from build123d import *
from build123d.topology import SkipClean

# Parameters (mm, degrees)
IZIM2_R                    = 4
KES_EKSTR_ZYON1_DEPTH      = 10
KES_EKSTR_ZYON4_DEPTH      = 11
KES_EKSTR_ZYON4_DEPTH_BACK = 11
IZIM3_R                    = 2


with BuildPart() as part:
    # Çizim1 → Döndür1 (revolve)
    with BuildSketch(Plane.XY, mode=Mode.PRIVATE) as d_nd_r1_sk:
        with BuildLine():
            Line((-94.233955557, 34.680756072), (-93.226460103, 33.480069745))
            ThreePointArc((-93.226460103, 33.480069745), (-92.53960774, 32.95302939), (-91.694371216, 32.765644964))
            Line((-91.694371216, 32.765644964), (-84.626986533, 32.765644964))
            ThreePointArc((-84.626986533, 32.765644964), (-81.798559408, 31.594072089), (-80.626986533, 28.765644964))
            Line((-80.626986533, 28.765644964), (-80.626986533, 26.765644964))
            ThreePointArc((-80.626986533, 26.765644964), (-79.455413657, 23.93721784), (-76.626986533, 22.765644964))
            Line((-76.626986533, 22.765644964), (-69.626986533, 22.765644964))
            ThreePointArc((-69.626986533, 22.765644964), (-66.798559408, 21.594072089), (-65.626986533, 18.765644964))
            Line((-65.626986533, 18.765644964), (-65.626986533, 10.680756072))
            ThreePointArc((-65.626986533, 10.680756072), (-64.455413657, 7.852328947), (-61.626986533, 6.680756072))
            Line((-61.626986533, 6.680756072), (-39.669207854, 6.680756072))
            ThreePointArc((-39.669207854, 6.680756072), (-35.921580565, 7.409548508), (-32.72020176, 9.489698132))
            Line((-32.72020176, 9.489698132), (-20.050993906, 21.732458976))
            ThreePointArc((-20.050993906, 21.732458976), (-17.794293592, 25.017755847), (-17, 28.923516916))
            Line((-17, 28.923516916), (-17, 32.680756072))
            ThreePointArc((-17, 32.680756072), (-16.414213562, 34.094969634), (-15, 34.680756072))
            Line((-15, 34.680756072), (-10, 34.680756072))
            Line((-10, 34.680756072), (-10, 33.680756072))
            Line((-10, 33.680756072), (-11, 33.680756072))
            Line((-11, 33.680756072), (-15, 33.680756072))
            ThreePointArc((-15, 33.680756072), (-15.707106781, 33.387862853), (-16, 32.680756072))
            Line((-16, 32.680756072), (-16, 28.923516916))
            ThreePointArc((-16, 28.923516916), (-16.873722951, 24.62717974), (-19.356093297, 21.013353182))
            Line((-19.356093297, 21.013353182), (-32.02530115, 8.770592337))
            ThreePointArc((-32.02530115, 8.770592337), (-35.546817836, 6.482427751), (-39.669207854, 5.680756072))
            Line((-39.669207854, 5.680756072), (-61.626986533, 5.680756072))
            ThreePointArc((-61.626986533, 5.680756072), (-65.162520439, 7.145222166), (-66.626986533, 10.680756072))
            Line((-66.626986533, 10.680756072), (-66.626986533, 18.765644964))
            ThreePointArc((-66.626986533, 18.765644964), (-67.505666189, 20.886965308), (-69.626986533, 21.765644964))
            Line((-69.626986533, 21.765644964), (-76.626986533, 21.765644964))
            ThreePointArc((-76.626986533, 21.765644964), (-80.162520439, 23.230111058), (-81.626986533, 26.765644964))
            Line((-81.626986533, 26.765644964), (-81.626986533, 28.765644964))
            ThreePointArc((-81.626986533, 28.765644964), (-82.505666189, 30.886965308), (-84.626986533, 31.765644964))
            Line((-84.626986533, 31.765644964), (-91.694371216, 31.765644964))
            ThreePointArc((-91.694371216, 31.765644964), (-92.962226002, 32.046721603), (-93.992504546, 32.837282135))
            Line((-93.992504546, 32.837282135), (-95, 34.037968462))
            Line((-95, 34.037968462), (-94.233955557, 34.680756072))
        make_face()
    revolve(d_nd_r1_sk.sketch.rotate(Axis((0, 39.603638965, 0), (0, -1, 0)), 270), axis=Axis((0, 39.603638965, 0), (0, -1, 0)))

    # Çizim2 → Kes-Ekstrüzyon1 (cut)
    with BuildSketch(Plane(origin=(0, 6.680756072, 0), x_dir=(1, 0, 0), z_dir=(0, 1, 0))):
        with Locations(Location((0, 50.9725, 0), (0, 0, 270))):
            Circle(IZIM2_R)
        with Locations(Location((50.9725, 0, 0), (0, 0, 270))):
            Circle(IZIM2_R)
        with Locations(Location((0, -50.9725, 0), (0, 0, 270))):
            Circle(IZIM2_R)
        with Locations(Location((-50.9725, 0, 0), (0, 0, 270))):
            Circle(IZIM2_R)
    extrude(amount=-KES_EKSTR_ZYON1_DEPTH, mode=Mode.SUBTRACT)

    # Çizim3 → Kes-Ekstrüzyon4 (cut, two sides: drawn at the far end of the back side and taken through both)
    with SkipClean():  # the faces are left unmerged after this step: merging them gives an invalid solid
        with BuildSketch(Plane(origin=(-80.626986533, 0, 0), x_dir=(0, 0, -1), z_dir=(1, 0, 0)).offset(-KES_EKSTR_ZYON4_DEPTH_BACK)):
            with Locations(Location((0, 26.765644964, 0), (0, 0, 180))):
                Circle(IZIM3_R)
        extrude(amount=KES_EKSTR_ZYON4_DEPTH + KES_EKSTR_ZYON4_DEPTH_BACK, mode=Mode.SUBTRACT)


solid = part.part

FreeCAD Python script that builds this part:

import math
import FreeCAD as App
import Part
import Sketcher
Q = App.Units.Quantity

doc = App.newDocument("Part")
body = doc.addObject("PartDesign::Body", "Body")

sketch1 = doc.addObject("Sketcher::SketchObject", "Sketch")
body.addObject(sketch1)
sketch1.AttachmentSupport = (doc.XY_Plane, [""])
sketch1.MapMode = "FlatFace"
sketch1.addGeometry([
    Part.LineSegment(App.Vector(-93.2, 33.5, 0), App.Vector(-94.2, 34.7, 0)),
    Part.LineSegment(App.Vector(-94.2, 34.7, 0), App.Vector(-95, 34, 0)),
    Part.LineSegment(App.Vector(-95, 34, 0), App.Vector(-94, 32.8, 0)),
    Part.ArcOfCircle(Part.Circle(App.Vector(-91.7, 34.8, 0), App.Vector(0, 0, 1), 3), math.radians(-140), math.radians(-90)),
    Part.LineSegment(App.Vector(-91.7, 31.8, 0), App.Vector(-84.6, 31.8, 0)),
    Part.ArcOfCircle(Part.Circle(App.Vector(-84.6, 28.8, 0), App.Vector(0, 0, 1), 3), math.radians(0), math.radians(90)),
    Part.LineSegment(App.Vector(-81.6, 28.8, 0), App.Vector(-81.6, 26.8, 0)),
    Part.ArcOfCircle(Part.Circle(App.Vector(-76.6, 26.8, 0), App.Vector(0, 0, 1), 5), math.radians(180), math.radians(270)),
    Part.LineSegment(App.Vector(-76.6, 21.8, 0), App.Vector(-69.6, 21.8, 0)),
    Part.ArcOfCircle(Part.Circle(App.Vector(-69.6, 18.8, 0), App.Vector(0, 0, 1), 3), math.radians(0), math.radians(90)),
    Part.LineSegment(App.Vector(-66.6, 18.8, 0), App.Vector(-66.6, 10.7, 0)),
    Part.ArcOfCircle(Part.Circle(App.Vector(-61.6, 10.7, 0), App.Vector(0, 0, 1), 5), math.radians(180), math.radians(270)),
    Part.LineSegment(App.Vector(-61.6, 5.7, 0), App.Vector(-39.7, 5.7, 0)),
    Part.ArcOfCircle(Part.Circle(App.Vector(-39.7, 16.7, 0), App.Vector(0, 0, 1), 11), math.radians(-90), math.radians(-46)),
    Part.LineSegment(App.Vector(-32, 8.8, 0), App.Vector(-19.4, 21, 0)),
    Part.ArcOfCircle(Part.Circle(App.Vector(-27, 28.9, 0), App.Vector(0, 0, 1), 11), math.radians(-46), math.radians(0)),
    Part.LineSegment(App.Vector(-16, 28.9, 0), App.Vector(-16, 32.7, 0)),
    Part.ArcOfCircle(Part.Circle(App.Vector(-15, 32.7, 0), App.Vector(0, 0, 1), 1), math.radians(90), math.radians(180)),
    Part.LineSegment(App.Vector(-15, 33.7, 0), App.Vector(-10, 33.7, 0)),
    Part.LineSegment(App.Vector(-10, 33.7, 0), App.Vector(-10, 34.7, 0)),
    Part.LineSegment(App.Vector(-10, 34.7, 0), App.Vector(-15, 34.7, 0)),
    Part.ArcOfCircle(Part.Circle(App.Vector(-15, 32.7, 0), App.Vector(0, 0, 1), 2), math.radians(90), math.radians(180)),
    Part.LineSegment(App.Vector(-17, 32.7, 0), App.Vector(-17, 28.9, 0)),
    Part.ArcOfCircle(Part.Circle(App.Vector(-27, 28.9, 0), App.Vector(0, 0, 1), 10), math.radians(-46), math.radians(0)),
    Part.LineSegment(App.Vector(-20.1, 21.7, 0), App.Vector(-32.7, 9.5, 0)),
    Part.ArcOfCircle(Part.Circle(App.Vector(-39.7, 16.7, 0), App.Vector(0, 0, 1), 10), math.radians(-90), math.radians(-46)),
    Part.LineSegment(App.Vector(-39.7, 6.7, 0), App.Vector(-61.6, 6.7, 0)),
    Part.ArcOfCircle(Part.Circle(App.Vector(-61.6, 10.7, 0), App.Vector(0, 0, 1), 4), math.radians(-180), math.radians(-90)),
    Part.LineSegment(App.Vector(-65.6, 10.7, 0), App.Vector(-65.6, 18.8, 0)),
    Part.ArcOfCircle(Part.Circle(App.Vector(-69.6, 18.8, 0), App.Vector(0, 0, 1), 4), math.radians(0), math.radians(90)),
    Part.LineSegment(App.Vector(-69.6, 22.8, 0), App.Vector(-76.6, 22.8, 0)),
    Part.ArcOfCircle(Part.Circle(App.Vector(-76.6, 26.8, 0), App.Vector(0, 0, 1), 4), math.radians(-180), math.radians(-90)),
    Part.LineSegment(App.Vector(-80.6, 26.8, 0), App.Vector(-80.6, 28.8, 0)),
    Part.ArcOfCircle(Part.Circle(App.Vector(-84.6, 28.8, 0), App.Vector(0, 0, 1), 4), math.radians(0), math.radians(90)),
    Part.LineSegment(App.Vector(-84.6, 32.8, 0), App.Vector(-91.7, 32.8, 0)),
    Part.ArcOfCircle(Part.Circle(App.Vector(-91.7, 34.8, 0), App.Vector(0, 0, 1), 2), math.radians(-140), math.radians(-90)),
], False)
sketch1.addConstraint([
    Sketcher.Constraint("Coincident", 0, 2, 1, 1),
    Sketcher.Constraint("Coincident", 1, 2, 2, 1),
    Sketcher.Constraint("Tangent", 2, 2, 3, 1),
    Sketcher.Constraint("Tangent", 3, 2, 4, 1),
    Sketcher.Constraint("Tangent", 4, 2, 5, 2),
    Sketcher.Constraint("Tangent", 5, 1, 6, 1),
    Sketcher.Constraint("Tangent", 6, 2, 7, 1),
    Sketcher.Constraint("Tangent", 7, 2, 8, 1),
    Sketcher.Constraint("Tangent", 8, 2, 9, 2),
    Sketcher.Constraint("Tangent", 9, 1, 10, 1),
    Sketcher.Constraint("Tangent", 10, 2, 11, 1),
    Sketcher.Constraint("Tangent", 11, 2, 12, 1),
    Sketcher.Constraint("Tangent", 12, 2, 13, 1),
    Sketcher.Constraint("Tangent", 13, 2, 14, 1),
    Sketcher.Constraint("Tangent", 14, 2, 15, 1),
    Sketcher.Constraint("Tangent", 15, 2, 16, 1),
    Sketcher.Constraint("Tangent", 16, 2, 17, 2),
    Sketcher.Constraint("Tangent", 17, 1, 18, 1),
    Sketcher.Constraint("Coincident", 18, 2, 19, 1),
    Sketcher.Constraint("Coincident", 19, 2, 20, 1),
    Sketcher.Constraint("Tangent", 20, 2, 21, 1),
    Sketcher.Constraint("Tangent", 21, 2, 22, 1),
    Sketcher.Constraint("Tangent", 22, 2, 23, 2),
    Sketcher.Constraint("Tangent", 23, 1, 24, 1),
    Sketcher.Constraint("Tangent", 24, 2, 25, 2),
    Sketcher.Constraint("Tangent", 25, 1, 26, 1),
    Sketcher.Constraint("Tangent", 26, 2, 27, 2),
    Sketcher.Constraint("Tangent", 27, 1, 28, 1),
    Sketcher.Constraint("Tangent", 28, 2, 29, 1),
    Sketcher.Constraint("Tangent", 29, 2, 30, 1),
    Sketcher.Constraint("Tangent", 30, 2, 31, 2),
    Sketcher.Constraint("Tangent", 31, 1, 32, 1),
    Sketcher.Constraint("Tangent", 32, 2, 33, 1),
    Sketcher.Constraint("Tangent", 33, 2, 34, 1),
    Sketcher.Constraint("Tangent", 34, 2, 35, 2),
    Sketcher.Constraint("Tangent", 35, 1, 0, 1),
    Sketcher.Constraint("Horizontal", 4),
    Sketcher.Constraint("Vertical", 6),
    Sketcher.Constraint("Horizontal", 8),
    Sketcher.Constraint("Vertical", 10),
    Sketcher.Constraint("Horizontal", 12),
    Sketcher.Constraint("Vertical", 16),
    Sketcher.Constraint("Horizontal", 18),
    Sketcher.Constraint("Vertical", 19),
    Sketcher.Constraint("Horizontal", 20),
    Sketcher.Constraint("Vertical", 22),
    Sketcher.Constraint("Horizontal", 26),
    Sketcher.Constraint("Vertical", 28),
    Sketcher.Constraint("Horizontal", 30),
    Sketcher.Constraint("Vertical", 32),
    Sketcher.Constraint("Horizontal", 34),
    Sketcher.Constraint("Coincident", 21, 3, 17, 3),
    Sketcher.Constraint("Coincident", 23, 3, 15, 3),
    Sketcher.Constraint("Coincident", 25, 3, 13, 3),
    Sketcher.Constraint("Coincident", 27, 3, 11, 3),
    Sketcher.Constraint("Coincident", 29, 3, 9, 3),
    Sketcher.Constraint("Coincident", 31, 3, 7, 3),
    Sketcher.Constraint("Coincident", 33, 3, 5, 3),
    Sketcher.Constraint("Coincident", 35, 3, 3, 3),
    Sketcher.Constraint("Equal", 3, 5),
    Sketcher.Constraint("Equal", 5, 9),
    Sketcher.Constraint("Equal", 7, 11),
    Sketcher.Constraint("Equal", 13, 15),
    Sketcher.Constraint("Equal", 23, 25),
    Sketcher.Constraint("Equal", 27, 29),
    Sketcher.Constraint("Equal", 21, 35),
    Sketcher.Constraint("Perpendicular", 0, 1),
    Sketcher.Constraint("Perpendicular", 1, 2),
    Sketcher.Constraint("Horizontal", 0, 2, 19, 2),
    Sketcher.Constraint("Radius", 3, Q("3 mm")),
    Sketcher.Constraint("Radius", 7, Q("5 mm")),
    Sketcher.Constraint("Radius", 13, Q("11 mm")),
    Sketcher.Constraint("DistanceX", 8, 1, 8, 2, Q("7 mm")),
    Sketcher.Constraint("DistanceX", 18, 1, 18, 2, Q("5 mm")),
    Sketcher.Constraint("DistanceY", 6, 2, 6, 1, Q("2 mm")),
    Sketcher.Constraint("Angle", 0, Q("130 deg")),
    Sketcher.Constraint("DistanceX", 15, 3, -1, 1, Q("27 mm")),
    Sketcher.Constraint("DistanceX", 1, 2, -1, 1, Q("95 mm")),
    Sketcher.Constraint("DistanceY", 13, 3, 17, 3, Q("16 mm")),
    Sketcher.Constraint("DistanceX", 12, 1, 12, 2, Q("21.957779 mm")),
    Sketcher.Constraint("DistanceY", 10, 2, 10, 1, Q("8.084889 mm")),
    Sketcher.Constraint("DistanceY", 16, 1, 16, 2, Q("3.757239 mm")),
    Sketcher.Constraint("DistanceX", 13, 2, -1, 1, Q("32.025301 mm")),
    Sketcher.Constraint("DistanceY", -1, 1, 24, 2, Q("9.489698 mm")),
])
revolution = doc.addObject("PartDesign::Revolution", "Revolution")
body.addObject(revolution)
revolution.Profile = sketch1
revolution.ReferenceAxis = (sketch1, ["V_Axis"])
revolution.Angle = 360

sketch2 = doc.addObject("Sketcher::SketchObject", "Sketch001")
body.addObject(sketch2)
sketch2.AttachmentSupport = (doc.XZ_Plane, [""])
sketch2.MapMode = "FlatFace"
sketch2.AttachmentOffset = App.Placement(App.Vector(0, 0, -6.680756), App.Rotation())
sketch2.addGeometry([
    Part.Circle(App.Vector(0, -51, 0), App.Vector(0, 0, 1), 4),
    Part.Circle(App.Vector(51, 0, 0), App.Vector(0, 0, 1), 4),
    Part.Circle(App.Vector(0, 51, 0), App.Vector(0, 0, 1), 4),
    Part.Circle(App.Vector(-51, 0, 0), App.Vector(0, 0, 1), 4),
], False)
sketch2.addConstraint([
    Sketcher.Constraint("Equal", 0, 1),
    Sketcher.Constraint("Equal", 1, 2),
    Sketcher.Constraint("Equal", 2, 3),
    Sketcher.Constraint("Symmetric", 0, 3, 2, 3, -1, 1),
    Sketcher.Constraint("Symmetric", 1, 3, 3, 3, -1, 1),
    Sketcher.Constraint("PointOnObject", 0, 3, -2),
    Sketcher.Constraint("PointOnObject", 1, 3, -1),
    Sketcher.Constraint("Diameter", 0, Q("8 mm")),
    Sketcher.Constraint("DistanceY", 0, 3, 2, 3, Q("101.945 mm")),
    Sketcher.Constraint("DistanceX", 3, 3, 1, 3, Q("101.945 mm")),
])
pocket1 = doc.addObject("PartDesign::Pocket", "Pocket")
body.addObject(pocket1)
pocket1.Profile = sketch2
pocket1.Length = 10
pocket1.Reversed = True

sketch3 = doc.addObject("Sketcher::SketchObject", "Sketch002")
body.addObject(sketch3)
sketch3.AttachmentSupport = (doc.YZ_Plane, [""])
sketch3.MapMode = "FlatFace"
sketch3.AttachmentOffset = App.Placement(App.Vector(0, 0, -80.626987), App.Rotation())
sketch3.addGeometry(Part.Circle(App.Vector(26.8, 0, 0), App.Vector(0, 0, 1), 2), False)
sketch3.addConstraint([
    Sketcher.Constraint("PointOnObject", 0, 3, -1),
    Sketcher.Constraint("Diameter", 0, Q("4 mm")),
    Sketcher.Constraint("DistanceX", -1, 1, 0, 3, Q("26.765645 mm")),
])
pocket2 = doc.addObject("PartDesign::Pocket", "Pocket001")
body.addObject(pocket2)
pocket2.Profile = sketch3
pocket2.Type = "TwoLengths"
pocket2.Length = 11
pocket2.Length2 = 11
pocket2.Reversed = True

doc.recompute()
